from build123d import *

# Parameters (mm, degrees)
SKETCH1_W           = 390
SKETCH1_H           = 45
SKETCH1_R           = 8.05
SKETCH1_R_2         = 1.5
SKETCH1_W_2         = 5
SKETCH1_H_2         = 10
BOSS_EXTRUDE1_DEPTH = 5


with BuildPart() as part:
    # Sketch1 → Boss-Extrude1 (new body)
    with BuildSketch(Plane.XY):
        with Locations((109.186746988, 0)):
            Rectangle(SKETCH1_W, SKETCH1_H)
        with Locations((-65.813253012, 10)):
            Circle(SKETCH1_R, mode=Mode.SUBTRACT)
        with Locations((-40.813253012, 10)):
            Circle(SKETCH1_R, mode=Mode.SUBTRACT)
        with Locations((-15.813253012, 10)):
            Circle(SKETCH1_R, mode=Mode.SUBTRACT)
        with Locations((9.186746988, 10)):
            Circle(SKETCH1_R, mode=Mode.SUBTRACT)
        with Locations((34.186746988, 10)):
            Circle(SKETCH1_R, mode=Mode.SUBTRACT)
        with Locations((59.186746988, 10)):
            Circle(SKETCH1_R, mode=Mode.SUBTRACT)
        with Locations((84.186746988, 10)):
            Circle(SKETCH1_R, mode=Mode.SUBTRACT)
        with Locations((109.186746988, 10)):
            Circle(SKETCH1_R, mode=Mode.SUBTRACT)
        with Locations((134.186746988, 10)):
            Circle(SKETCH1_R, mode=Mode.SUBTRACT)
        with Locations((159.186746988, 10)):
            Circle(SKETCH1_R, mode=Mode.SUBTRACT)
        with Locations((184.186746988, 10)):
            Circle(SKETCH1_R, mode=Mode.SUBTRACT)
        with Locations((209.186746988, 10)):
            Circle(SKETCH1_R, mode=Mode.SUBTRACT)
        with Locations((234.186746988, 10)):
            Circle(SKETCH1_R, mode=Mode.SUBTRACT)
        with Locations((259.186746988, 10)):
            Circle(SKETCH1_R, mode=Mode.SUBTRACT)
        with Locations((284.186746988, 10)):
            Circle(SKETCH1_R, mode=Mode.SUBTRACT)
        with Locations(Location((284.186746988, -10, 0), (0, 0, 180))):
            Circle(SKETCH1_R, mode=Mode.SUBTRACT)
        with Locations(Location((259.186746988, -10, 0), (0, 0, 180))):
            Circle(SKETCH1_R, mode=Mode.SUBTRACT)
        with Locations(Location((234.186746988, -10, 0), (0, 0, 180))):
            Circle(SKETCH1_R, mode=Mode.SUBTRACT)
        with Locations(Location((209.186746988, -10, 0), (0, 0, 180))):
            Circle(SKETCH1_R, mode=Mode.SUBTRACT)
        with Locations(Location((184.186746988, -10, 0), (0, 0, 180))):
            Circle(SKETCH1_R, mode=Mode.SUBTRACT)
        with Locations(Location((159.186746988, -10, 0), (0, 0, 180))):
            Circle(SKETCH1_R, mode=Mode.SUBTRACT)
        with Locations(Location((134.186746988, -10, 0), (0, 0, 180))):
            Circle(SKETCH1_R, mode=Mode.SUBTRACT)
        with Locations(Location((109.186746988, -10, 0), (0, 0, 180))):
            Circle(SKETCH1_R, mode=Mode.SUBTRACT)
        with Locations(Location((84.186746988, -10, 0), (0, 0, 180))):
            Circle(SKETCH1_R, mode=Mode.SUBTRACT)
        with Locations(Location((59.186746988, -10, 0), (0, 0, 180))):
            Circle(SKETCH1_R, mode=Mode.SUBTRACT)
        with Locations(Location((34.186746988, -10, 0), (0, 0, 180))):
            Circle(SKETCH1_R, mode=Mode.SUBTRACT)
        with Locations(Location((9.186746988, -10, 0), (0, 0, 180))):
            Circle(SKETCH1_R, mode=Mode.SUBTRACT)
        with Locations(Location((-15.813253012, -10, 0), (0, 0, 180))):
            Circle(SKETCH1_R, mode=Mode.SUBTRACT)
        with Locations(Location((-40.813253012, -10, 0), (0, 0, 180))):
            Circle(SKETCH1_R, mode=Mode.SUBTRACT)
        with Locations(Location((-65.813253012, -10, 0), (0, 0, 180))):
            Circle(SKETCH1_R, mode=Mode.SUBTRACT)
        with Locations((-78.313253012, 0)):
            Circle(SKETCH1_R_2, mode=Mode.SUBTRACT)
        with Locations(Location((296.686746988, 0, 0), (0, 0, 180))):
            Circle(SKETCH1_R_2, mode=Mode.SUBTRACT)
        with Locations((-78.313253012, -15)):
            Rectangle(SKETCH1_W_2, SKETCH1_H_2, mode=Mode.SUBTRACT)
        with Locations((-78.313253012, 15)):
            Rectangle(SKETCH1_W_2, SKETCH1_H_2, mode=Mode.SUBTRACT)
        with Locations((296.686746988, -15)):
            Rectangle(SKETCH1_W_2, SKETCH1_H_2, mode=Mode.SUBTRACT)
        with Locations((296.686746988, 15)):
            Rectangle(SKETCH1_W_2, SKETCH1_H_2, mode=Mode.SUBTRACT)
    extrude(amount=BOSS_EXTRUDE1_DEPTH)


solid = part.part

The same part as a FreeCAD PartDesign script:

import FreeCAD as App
import Part
import Sketcher
from FreeCAD import Vector

doc = App.newDocument("Part")
body = doc.addObject("PartDesign::Body", "Body")

# Sketch on XY plane
sketch1 = body.newObject("Sketcher::SketchObject", "Sketch")
sketch1.AttachmentSupport = (doc.getObject("XY_Plane"), [""])
sketch1.MapMode = "FlatFace"
sketch1.addGeometry([
    Part.LineSegment(Vector(-85.8, 22.5, 0), Vector(-85.8, -22.5, 0)),  # 0
    Part.LineSegment(Vector(-85.8, -22.5, 0), Vector(304.2, -22.5, 0)),  # 1
    Part.LineSegment(Vector(304.2, -22.5, 0), Vector(304.2, 22.5, 0)),  # 2
    Part.LineSegment(Vector(304.2, 22.5, 0), Vector(-85.8, 22.5, 0)),  # 3
    Part.LineSegment(Vector(-75.8, -20, 0), Vector(-80.8, -20, 0)),  # 4
    Part.LineSegment(Vector(-80.8, -20, 0), Vector(-80.8, -10, 0)),  # 5
    Part.LineSegment(Vector(-80.8, -10, 0), Vector(-75.8, -10, 0)),  # 6
    Part.LineSegment(Vector(-75.8, -10, 0), Vector(-75.8, -20, 0)),  # 7
    Part.Circle(Vector(-65.8, -10, 0), Vector(0, 0, 1), 8.1),  # 8
    Part.Circle(Vector(-40.8, -10, 0), Vector(0, 0, 1), 8.1),  # 9
    Part.Circle(Vector(-15.8, -10, 0), Vector(0, 0, 1), 8.1),  # 10
    Part.Circle(Vector(9.2, -10, 0), Vector(0, 0, 1), 8.1),  # 11
    Part.Circle(Vector(34.2, -10, 0), Vector(0, 0, 1), 8.1),  # 12
    Part.Circle(Vector(59.2, -10, 0), Vector(0, 0, 1), 8.1),  # 13
    Part.Circle(Vector(84.2, -10, 0), Vector(0, 0, 1), 8.1),  # 14
    Part.LineSegment(Vector(299.2, -20, 0), Vector(294.2, -20, 0)),  # 15
    Part.LineSegment(Vector(294.2, -20, 0), Vector(294.2, -10, 0)),  # 16
    Part.LineSegment(Vector(294.2, -10, 0), Vector(299.2, -10, 0)),  # 17
    Part.LineSegment(Vector(299.2, -10, 0), Vector(299.2, -20, 0)),  # 18
    Part.Circle(Vector(109.2, -10, 0), Vector(0, 0, 1), 8.1),  # 19
    Part.Circle(Vector(134.2, -10, 0), Vector(0, 0, 1), 8.1),  # 20
    Part.Circle(Vector(159.2, -10, 0), Vector(0, 0, 1), 8.1),  # 21
    Part.Circle(Vector(184.2, -10, 0), Vector(0, 0, 1), 8.1),  # 22
    Part.Circle(Vector(209.2, -10, 0), Vector(0, 0, 1), 8.1),  # 23
    Part.Circle(Vector(234.2, -10, 0), Vector(0, 0, 1), 8.1),  # 24
    Part.Circle(Vector(259.2, -10, 0), Vector(0, 0, 1), 8.1),  # 25
    Part.Circle(Vector(284.2, -10, 0), Vector(0, 0, 1), 8.1),  # 26
    Part.Circle(Vector(-78.3, 0, 0), Vector(0, 0, 1), 1.5),  # 27
    Part.Circle(Vector(-65.8, 10, 0), Vector(0, 0, 1), 8.1),  # 28
    Part.Circle(Vector(-40.8, 10, 0), Vector(0, 0, 1), 8.1),  # 29
    Part.Circle(Vector(-15.8, 10, 0), Vector(0, 0, 1), 8.1),  # 30
    Part.Circle(Vector(9.2, 10, 0), Vector(0, 0, 1), 8.1),  # 31
    Part.LineSegment(Vector(-75.8, 10, 0), Vector(-80.8, 10, 0)),  # 32
    Part.LineSegment(Vector(-80.8, 10, 0), Vector(-80.8, 20, 0)),  # 33
    Part.LineSegment(Vector(-80.8, 20, 0), Vector(-75.8, 20, 0)),  # 34
    Part.LineSegment(Vector(-75.8, 20, 0), Vector(-75.8, 10, 0)),  # 35
    Part.Circle(Vector(34.2, 10, 0), Vector(0, 0, 1), 8.1),  # 36
    Part.Circle(Vector(59.2, 10, 0), Vector(0, 0, 1), 8.1),  # 37
    Part.Circle(Vector(84.2, 10, 0), Vector(0, 0, 1), 8.1),  # 38
    Part.Circle(Vector(296.7, 0, 0), Vector(0, 0, 1), 1.5),  # 39
    Part.Circle(Vector(109.2, 10, 0), Vector(0, 0, 1), 8.1),  # 40
    Part.Circle(Vector(134.2, 10, 0), Vector(0, 0, 1), 8.1),  # 41
    Part.Circle(Vector(159.2, 10, 0), Vector(0, 0, 1), 8.1),  # 42
    Part.Circle(Vector(184.2, 10, 0), Vector(0, 0, 1), 8.1),  # 43
    Part.Circle(Vector(209.2, 10, 0), Vector(0, 0, 1), 8.1),  # 44
    Part.Circle(Vector(234.2, 10, 0), Vector(0, 0, 1), 8.1),  # 45
    Part.Circle(Vector(259.2, 10, 0), Vector(0, 0, 1), 8.1),  # 46
    Part.Circle(Vector(284.2, 10, 0), Vector(0, 0, 1), 8.1),  # 47
    Part.LineSegment(Vector(299.2, 10, 0), Vector(294.2, 10, 0)),  # 48
    Part.LineSegment(Vector(294.2, 10, 0), Vector(294.2, 20, 0)),  # 49
    Part.LineSegment(Vector(294.2, 20, 0), Vector(299.2, 20, 0)),  # 50
    Part.LineSegment(Vector(299.2, 20, 0), Vector(299.2, 10, 0)),  # 51
], False)
sketch1.addConstraint([
    Sketcher.Constraint("Coincident", 0, 2, 1, 1),
    Sketcher.Constraint("Coincident", 1, 2, 2, 1),
    Sketcher.Constraint("Coincident", 2, 2, 3, 1),
    Sketcher.Constraint("Coincident", 3, 2, 0, 1),
    Sketcher.Constraint("Coincident", 4, 2, 5, 1),
    Sketcher.Constraint("Coincident", 5, 2, 6, 1),
    Sketcher.Constraint("Coincident", 6, 2, 7, 1),
    Sketcher.Constraint("Coincident", 7, 2, 4, 1),
    Sketcher.Constraint("Coincident", 15, 2, 16, 1),
    Sketcher.Constraint("Coincident", 16, 2, 17, 1),
    Sketcher.Constraint("Coincident", 17, 2, 18, 1),
    Sketcher.Constraint("Coincident", 18, 2, 15, 1),
    Sketcher.Constraint("Coincident", 32, 2, 33, 1),
    Sketcher.Constraint("Coincident", 33, 2, 34, 1),
    Sketcher.Constraint("Coincident", 34, 2, 35, 1),
    Sketcher.Constraint("Coincident", 35, 2, 32, 1),
    Sketcher.Constraint("Coincident", 48, 2, 49, 1),
    Sketcher.Constraint("Coincident", 49, 2, 50, 1),
    Sketcher.Constraint("Coincident", 50, 2, 51, 1),
    Sketcher.Constraint("Coincident", 51, 2, 48, 1),
    Sketcher.Constraint("Vertical", 0),
    Sketcher.Constraint("Horizontal", 1),
    Sketcher.Constraint("Vertical", 2),
    Sketcher.Constraint("Horizontal", 3),
    Sketcher.Constraint("Horizontal", 4),
    Sketcher.Constraint("Vertical", 5),
    Sketcher.Constraint("Horizontal", 6),
    Sketcher.Constraint("Vertical", 7),
    Sketcher.Constraint("Horizontal", 15),
    Sketcher.Constraint("Vertical", 16),
    Sketcher.Constraint("Horizontal", 17),
    Sketcher.Constraint("Vertical", 18),
    Sketcher.Constraint("Horizontal", 32),
    Sketcher.Constraint("Vertical", 33),
    Sketcher.Constraint("Horizontal", 34),
    Sketcher.Constraint("Vertical", 35),
    Sketcher.Constraint("Horizontal", 48),
    Sketcher.Constraint("Vertical", 49),
    Sketcher.Constraint("Horizontal", 50),
    Sketcher.Constraint("Vertical", 51),
    Sketcher.Constraint("Equal", 8, 9),
    Sketcher.Constraint("Equal", 9, 10),
    Sketcher.Constraint("Equal", 10, 11),
    Sketcher.Constraint("Equal", 11, 12),
    Sketcher.Constraint("Equal", 12, 13),
    Sketcher.Constraint("Equal", 13, 14),
    Sketcher.Constraint("Equal", 14, 19),
    Sketcher.Constraint("Equal", 19, 20),
    Sketcher.Constraint("Equal", 20, 21),
    Sketcher.Constraint("Equal", 21, 22),
    Sketcher.Constraint("Equal", 22, 23),
    Sketcher.Constraint("Equal", 23, 24),
    Sketcher.Constraint("Equal", 24, 25),
    Sketcher.Constraint("Equal", 25, 26),
    Sketcher.Constraint("Equal", 26, 28),
    Sketcher.Constraint("Equal", 28, 29),
    Sketcher.Constraint("Equal", 29, 30),
    Sketcher.Constraint("Equal", 30, 31),
    Sketcher.Constraint("Equal", 31, 36),
    Sketcher.Constraint("Equal", 36, 37),
    Sketcher.Constraint("Equal", 37, 38),
    Sketcher.Constraint("Equal", 27, 39),
    Sketcher.Constraint("Equal", 38, 40),
    Sketcher.Constraint("Equal", 40, 41),
    Sketcher.Constraint("Equal", 41, 42),
    Sketcher.Constraint("Equal", 42, 43),
    Sketcher.Constraint("Equal", 43, 44),
    Sketcher.Constraint("Equal", 44, 45),
    Sketcher.Constraint("Equal", 45, 46),
    Sketcher.Constraint("Equal", 46, 47),
    Sketcher.Constraint("Symmetric", 8, 3, 28, 3, -1),
    Sketcher.Constraint("Symmetric", 9, 3, 29, 3, -1),
    Sketcher.Constraint("Symmetric", 10, 3, 30, 3, -1),
    Sketcher.Constraint("Symmetric", 11, 3, 31, 3, -1),
    Sketcher.Constraint("Symmetric", 12, 3, 36, 3, -1),
    Sketcher.Constraint("Symmetric", 13, 3, 37, 3, -1),
    Sketcher.Constraint("Symmetric", 14, 3, 38, 3, -1),
    Sketcher.Constraint("Symmetric", 19, 3, 40, 3, -1),
    Sketcher.Constraint("Symmetric", 20, 3, 41, 3, -1),
    Sketcher.Constraint("Symmetric", 21, 3, 42, 3, -1),
    Sketcher.Constraint("Symmetric", 22, 3, 43, 3, -1),
    Sketcher.Constraint("Symmetric", 23, 3, 44, 3, -1),
    Sketcher.Constraint("Symmetric", 24, 3, 45, 3, -1),
    Sketcher.Constraint("Symmetric", 25, 3, 46, 3, -1),
    Sketcher.Constraint("Symmetric", 26, 3, 47, 3, -1),
    Sketcher.Constraint("Symmetric", 5, 2, 32, 2, -1),
    Sketcher.Constraint("Symmetric", 7, 2, 34, 2, -1),
    Sketcher.Constraint("Symmetric", 16, 2, 48, 2, -1),
    Sketcher.Constraint("Symmetric", 18, 2, 50, 2, -1),
    Sketcher.Constraint("PointOnObject", 27, 3, -1),
    Sketcher.Constraint("PointOnObject", 39, 3, -1),
    Sketcher.Constraint("Horizontal", 8, 3, 9, 3),
    Sketcher.Constraint("Horizontal", 9, 3, 10, 3),
    Sketcher.Constraint("Horizontal", 10, 3, 11, 3),
    Sketcher.Constraint("Horizontal", 11, 3, 12, 3),
    Sketcher.Constraint("Horizontal", 12, 3, 13, 3),
    Sketcher.Constraint("Horizontal", 13, 3, 14, 3),
    Sketcher.Constraint("Horizontal", 14, 3, 19, 3),
    Sketcher.Constraint("Horizontal", 19, 3, 20, 3),
    Sketcher.Constraint("Horizontal", 20, 3, 21, 3),
    Sketcher.Constraint("Horizontal", 21, 3, 22, 3),
    Sketcher.Constraint("Horizontal", 22, 3, 23, 3),
    Sketcher.Constraint("Horizontal", 23, 3, 24, 3),
    Sketcher.Constraint("Horizontal", 24, 3, 25, 3),
    Sketcher.Constraint("Horizontal", 25, 3, 26, 3),
    Sketcher.Constraint("Horizontal", 26, 3, 5, 2),
    Sketcher.Constraint("Horizontal", 7, 2, 15, 2),
    Sketcher.Constraint("Horizontal", 6, 2, 16, 2),
    Sketcher.Constraint("Equal", 6, 15),
    Sketcher.Constraint("Diameter", 27, 3.0),
    Sketcher.Constraint("Diameter", 8, 16.1),
    Sketcher.Constraint("DistanceX", 1, 1, 1, 2, 390.0),
    Sketcher.Constraint("DistanceX", 4, 2, 4, 1, 5.0),
    Sketcher.Constraint("DistanceY", 0, 2, 0, 1, 45.0),
    Sketcher.Constraint("DistanceY", 5, 1, 5, 2, 10.0),
    Sketcher.Constraint("DistanceY", 8, 3, -1, 1, 10.0),
    Sketcher.Constraint("DistanceX", 8, 3, 9, 3, 25.0),
    Sketcher.Constraint("DistanceX", 9, 3, 10, 3, 25.0),
    Sketcher.Constraint("DistanceX", 10, 3, 11, 3, 25.0),
    Sketcher.Constraint("DistanceX", 11, 3, 12, 3, 25.0),
    Sketcher.Constraint("DistanceX", 12, 3, 13, 3, 25.0),
    Sketcher.Constraint("DistanceX", 13, 3, 14, 3, 25.0),
    Sketcher.Constraint("DistanceX", 14, 3, 19, 3, 25.0),
    Sketcher.Constraint("DistanceX", 19, 3, 20, 3, 25.0),
    Sketcher.Constraint("DistanceX", 20, 3, 21, 3, 25.0),
    Sketcher.Constraint("DistanceX", 21, 3, 22, 3, 25.0),
    Sketcher.Constraint("DistanceX", 22, 3, 23, 3, 25.0),
    Sketcher.Constraint("DistanceX", 23, 3, 24, 3, 25.0),
    Sketcher.Constraint("DistanceX", 24, 3, 25, 3, 25.0),
    Sketcher.Constraint("DistanceX", 25, 3, 26, 3, 25.0),
    Sketcher.Constraint("DistanceX", 0, 2, 8, 3, 20.0),
    Sketcher.Constraint("DistanceX", 0, 2, 4, 2, 5.0),
    Sketcher.Constraint("DistanceX", 15, 2, 1, 2, 10.0),
    Sketcher.Constraint("DistanceY", 0, 2, -1, 1, 22.5),
    Sketcher.Constraint("DistanceX", 27, 3, 8, 3, 12.5),
    Sketcher.Constraint("DistanceX", 26, 3, 39, 3, 12.5),
    Sketcher.Constraint("DistanceX", 8, 3, -1, 1, 65.813253),
])
pad1 = body.newObject("PartDesign::Pad", "Pad")
pad1.Profile = sketch1
pad1.Length = 5

doc.recompute()
